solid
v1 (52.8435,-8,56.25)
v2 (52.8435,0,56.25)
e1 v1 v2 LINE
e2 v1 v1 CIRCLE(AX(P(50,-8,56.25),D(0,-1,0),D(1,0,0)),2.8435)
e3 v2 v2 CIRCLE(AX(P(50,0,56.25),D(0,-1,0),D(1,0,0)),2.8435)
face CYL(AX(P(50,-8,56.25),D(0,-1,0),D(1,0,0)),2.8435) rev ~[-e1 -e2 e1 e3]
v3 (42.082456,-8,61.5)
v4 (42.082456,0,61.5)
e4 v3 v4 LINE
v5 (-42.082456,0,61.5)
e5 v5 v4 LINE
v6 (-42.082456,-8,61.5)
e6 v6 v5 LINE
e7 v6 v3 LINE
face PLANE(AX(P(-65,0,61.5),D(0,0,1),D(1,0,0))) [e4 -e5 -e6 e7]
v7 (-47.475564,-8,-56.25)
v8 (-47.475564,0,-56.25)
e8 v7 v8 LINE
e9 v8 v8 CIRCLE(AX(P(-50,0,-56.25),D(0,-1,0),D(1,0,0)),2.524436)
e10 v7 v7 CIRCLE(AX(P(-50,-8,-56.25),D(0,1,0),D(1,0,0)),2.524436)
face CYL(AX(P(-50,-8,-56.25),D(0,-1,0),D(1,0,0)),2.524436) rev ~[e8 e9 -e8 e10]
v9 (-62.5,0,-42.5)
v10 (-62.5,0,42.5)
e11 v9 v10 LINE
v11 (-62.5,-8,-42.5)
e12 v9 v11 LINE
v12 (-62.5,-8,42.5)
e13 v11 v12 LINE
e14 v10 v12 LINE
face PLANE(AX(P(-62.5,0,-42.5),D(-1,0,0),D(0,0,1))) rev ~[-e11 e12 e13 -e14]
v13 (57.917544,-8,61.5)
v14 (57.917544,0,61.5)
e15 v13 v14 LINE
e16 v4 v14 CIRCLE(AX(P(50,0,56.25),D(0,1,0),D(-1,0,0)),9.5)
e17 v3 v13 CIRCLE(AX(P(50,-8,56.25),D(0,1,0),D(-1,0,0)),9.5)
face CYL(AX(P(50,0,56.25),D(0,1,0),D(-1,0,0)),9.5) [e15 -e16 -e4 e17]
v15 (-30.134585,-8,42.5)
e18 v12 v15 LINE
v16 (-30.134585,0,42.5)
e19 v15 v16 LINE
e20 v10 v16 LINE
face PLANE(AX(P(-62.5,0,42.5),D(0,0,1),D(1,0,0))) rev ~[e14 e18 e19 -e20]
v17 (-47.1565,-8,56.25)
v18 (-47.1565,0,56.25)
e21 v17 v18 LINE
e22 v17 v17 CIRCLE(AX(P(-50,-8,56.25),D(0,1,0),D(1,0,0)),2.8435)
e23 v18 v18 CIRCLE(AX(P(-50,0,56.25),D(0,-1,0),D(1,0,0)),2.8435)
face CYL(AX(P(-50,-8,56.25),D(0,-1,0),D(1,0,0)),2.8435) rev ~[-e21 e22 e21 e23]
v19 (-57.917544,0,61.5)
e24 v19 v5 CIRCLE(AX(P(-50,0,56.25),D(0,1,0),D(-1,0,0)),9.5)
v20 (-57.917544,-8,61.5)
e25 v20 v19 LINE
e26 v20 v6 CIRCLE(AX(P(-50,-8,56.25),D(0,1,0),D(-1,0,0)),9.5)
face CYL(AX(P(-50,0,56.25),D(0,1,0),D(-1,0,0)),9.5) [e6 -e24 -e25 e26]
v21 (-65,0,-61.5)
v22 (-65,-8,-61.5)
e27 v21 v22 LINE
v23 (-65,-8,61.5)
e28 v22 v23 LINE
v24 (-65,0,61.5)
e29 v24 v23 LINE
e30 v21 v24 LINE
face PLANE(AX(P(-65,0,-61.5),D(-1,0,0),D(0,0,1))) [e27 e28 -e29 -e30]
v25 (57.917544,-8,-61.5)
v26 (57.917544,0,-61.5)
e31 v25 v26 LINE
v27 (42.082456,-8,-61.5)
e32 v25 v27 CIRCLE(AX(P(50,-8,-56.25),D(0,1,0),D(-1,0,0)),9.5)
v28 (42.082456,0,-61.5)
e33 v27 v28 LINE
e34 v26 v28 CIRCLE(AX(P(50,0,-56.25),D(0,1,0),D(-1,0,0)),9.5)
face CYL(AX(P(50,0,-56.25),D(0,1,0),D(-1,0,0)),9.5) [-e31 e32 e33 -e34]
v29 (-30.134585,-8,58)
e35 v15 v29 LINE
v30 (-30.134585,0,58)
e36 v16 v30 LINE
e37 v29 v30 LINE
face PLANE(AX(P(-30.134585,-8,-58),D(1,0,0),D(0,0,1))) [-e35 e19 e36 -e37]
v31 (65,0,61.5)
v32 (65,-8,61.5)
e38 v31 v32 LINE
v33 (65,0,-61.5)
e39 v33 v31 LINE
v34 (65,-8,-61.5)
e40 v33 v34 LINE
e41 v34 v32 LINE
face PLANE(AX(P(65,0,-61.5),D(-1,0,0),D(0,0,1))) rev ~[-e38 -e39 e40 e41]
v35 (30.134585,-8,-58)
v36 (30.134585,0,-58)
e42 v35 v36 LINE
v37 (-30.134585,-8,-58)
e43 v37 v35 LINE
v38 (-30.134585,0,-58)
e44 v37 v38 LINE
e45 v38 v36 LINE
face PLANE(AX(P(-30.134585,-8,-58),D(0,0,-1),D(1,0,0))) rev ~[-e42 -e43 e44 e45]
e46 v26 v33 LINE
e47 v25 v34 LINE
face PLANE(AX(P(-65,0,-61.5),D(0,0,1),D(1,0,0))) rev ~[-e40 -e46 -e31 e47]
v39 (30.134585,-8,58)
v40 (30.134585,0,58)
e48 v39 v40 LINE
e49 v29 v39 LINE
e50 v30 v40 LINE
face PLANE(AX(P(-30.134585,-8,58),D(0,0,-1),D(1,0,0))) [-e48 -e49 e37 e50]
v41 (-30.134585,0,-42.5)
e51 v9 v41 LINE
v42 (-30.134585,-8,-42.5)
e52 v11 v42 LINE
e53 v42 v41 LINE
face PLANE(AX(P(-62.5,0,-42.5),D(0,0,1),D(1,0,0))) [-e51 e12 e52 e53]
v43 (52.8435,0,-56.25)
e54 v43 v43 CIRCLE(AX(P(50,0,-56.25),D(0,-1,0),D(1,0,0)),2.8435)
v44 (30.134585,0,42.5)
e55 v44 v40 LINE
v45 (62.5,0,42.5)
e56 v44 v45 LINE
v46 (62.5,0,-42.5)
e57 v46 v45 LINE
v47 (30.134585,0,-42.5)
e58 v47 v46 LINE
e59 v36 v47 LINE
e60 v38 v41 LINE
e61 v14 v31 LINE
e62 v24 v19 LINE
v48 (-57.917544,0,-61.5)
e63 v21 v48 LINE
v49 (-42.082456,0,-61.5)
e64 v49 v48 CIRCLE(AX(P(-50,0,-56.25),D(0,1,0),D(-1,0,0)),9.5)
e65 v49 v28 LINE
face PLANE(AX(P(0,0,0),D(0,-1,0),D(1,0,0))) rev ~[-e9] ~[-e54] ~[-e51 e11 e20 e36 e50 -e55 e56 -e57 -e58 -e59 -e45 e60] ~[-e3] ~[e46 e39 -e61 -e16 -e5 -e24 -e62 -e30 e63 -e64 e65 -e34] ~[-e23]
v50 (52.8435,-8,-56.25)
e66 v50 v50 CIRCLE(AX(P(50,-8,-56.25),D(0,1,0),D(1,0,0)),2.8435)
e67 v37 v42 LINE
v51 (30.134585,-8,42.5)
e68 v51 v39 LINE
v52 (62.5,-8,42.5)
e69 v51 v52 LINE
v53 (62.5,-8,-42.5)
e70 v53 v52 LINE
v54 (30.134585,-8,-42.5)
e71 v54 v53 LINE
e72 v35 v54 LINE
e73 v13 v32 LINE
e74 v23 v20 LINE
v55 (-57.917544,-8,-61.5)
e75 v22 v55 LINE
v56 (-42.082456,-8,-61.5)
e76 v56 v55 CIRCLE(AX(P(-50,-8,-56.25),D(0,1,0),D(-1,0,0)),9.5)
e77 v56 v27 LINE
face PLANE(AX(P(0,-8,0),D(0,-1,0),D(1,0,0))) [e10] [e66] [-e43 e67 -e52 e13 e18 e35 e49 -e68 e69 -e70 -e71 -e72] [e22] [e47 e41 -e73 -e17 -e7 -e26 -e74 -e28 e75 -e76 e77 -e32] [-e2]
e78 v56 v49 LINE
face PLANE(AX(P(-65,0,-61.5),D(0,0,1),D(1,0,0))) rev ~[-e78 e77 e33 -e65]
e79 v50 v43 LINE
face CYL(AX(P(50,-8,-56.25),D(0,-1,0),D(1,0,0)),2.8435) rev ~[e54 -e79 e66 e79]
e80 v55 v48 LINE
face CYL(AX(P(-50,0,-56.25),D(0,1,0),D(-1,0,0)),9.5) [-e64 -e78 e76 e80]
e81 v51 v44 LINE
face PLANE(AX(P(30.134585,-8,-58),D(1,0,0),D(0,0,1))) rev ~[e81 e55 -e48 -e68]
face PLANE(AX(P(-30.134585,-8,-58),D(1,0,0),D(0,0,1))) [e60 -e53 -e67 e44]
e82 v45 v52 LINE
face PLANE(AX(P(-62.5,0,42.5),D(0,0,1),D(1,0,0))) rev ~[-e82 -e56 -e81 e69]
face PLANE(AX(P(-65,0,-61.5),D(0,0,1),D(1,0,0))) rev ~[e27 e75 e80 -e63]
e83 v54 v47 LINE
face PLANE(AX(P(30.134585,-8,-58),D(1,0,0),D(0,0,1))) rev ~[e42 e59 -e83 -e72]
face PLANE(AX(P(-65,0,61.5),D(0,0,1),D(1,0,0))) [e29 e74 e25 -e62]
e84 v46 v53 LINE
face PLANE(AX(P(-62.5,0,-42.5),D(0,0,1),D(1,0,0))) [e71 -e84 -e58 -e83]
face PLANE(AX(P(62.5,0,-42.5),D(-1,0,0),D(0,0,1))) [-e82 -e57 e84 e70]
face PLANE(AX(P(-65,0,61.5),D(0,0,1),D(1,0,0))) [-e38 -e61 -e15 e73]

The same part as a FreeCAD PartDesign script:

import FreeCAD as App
import Part
import Sketcher
Q = App.Units.Quantity

doc = App.newDocument("Part")
body = doc.addObject("PartDesign::Body", "Body")

sketch1 = doc.addObject("Sketcher::SketchObject", "Sketch")
body.addObject(sketch1)
sketch1.AttachmentSupport = (doc.XZ_Plane, [""])
sketch1.MapMode = "FlatFace"
sketch1.addGeometry(Part.LineSegment(App.Vector(-65, 61.5, 0), App.Vector(-65, -61.5, 0)), False)
sketch1.addGeometry(Part.LineSegment(App.Vector(-65, -61.5, 0), App.Vector(65, -61.5, 0)), False)
sketch1.addGeometry(Part.LineSegment(App.Vector(65, -61.5, 0), App.Vector(65, 61.5, 0)), False)
sketch1.addGeometry(Part.LineSegment(App.Vector(65, 61.5, 0), App.Vector(-65, 61.5, 0)), False)
sketch1.addGeometry(Part.LineSegment(App.Vector(62.5, -42.5, 0), App.Vector(-62.5, -42.5, 0)), False)
sketch1.addGeometry(Part.LineSegment(App.Vector(-62.5, -42.5, 0), App.Vector(-62.5, 42.5, 0)), False)
sketch1.addGeometry(Part.LineSegment(App.Vector(-62.5, 42.5, 0), App.Vector(62.5, 42.5, 0)), False)
sketch1.addGeometry(Part.LineSegment(App.Vector(62.5, 42.5, 0), App.Vector(62.5, -42.5, 0)), False)
sketch1.addConstraint(Sketcher.Constraint("Coincident", 0, 2, 1, 1))
sketch1.addConstraint(Sketcher.Constraint("Coincident", 1, 2, 2, 1))
sketch1.addConstraint(Sketcher.Constraint("Coincident", 2, 2, 3, 1))
sketch1.addConstraint(Sketcher.Constraint("Coincident", 3, 2, 0, 1))
sketch1.addConstraint(Sketcher.Constraint("Coincident", 4, 2, 5, 1))
sketch1.addConstraint(Sketcher.Constraint("Coincident", 5, 2, 6, 1))
sketch1.addConstraint(Sketcher.Constraint("Coincident", 6, 2, 7, 1))
sketch1.addConstraint(Sketcher.Constraint("Coincident", 7, 2, 4, 1))
sketch1.addConstraint(Sketcher.Constraint("Vertical", 0))
sketch1.addConstraint(Sketcher.Constraint("Horizontal", 1))
sketch1.addConstraint(Sketcher.Constraint("Vertical", 2))
sketch1.addConstraint(Sketcher.Constraint("Horizontal", 3))
sketch1.addConstraint(Sketcher.Constraint("Horizontal", 4))
sketch1.addConstraint(Sketcher.Constraint("Vertical", 5))
sketch1.addConstraint(Sketcher.Constraint("Horizontal", 6))
sketch1.addConstraint(Sketcher.Constraint("Vertical", 7))
sketch1.addConstraint(Sketcher.Constraint("Symmetric", 0, 2, 2, 2, -1, 1))
sketch1.addConstraint(Sketcher.Constraint("Symmetric", 4, 2, 6, 2, -1, 1))
sketch1.addConstraint(Sketcher.Constraint("DistanceX", 1, 1, 1, 2, Q("130 mm")))
sketch1.addConstraint(Sketcher.Constraint("DistanceX", 4, 2, 4, 1, Q("125 mm")))
sketch1.addConstraint(Sketcher.Constraint("DistanceY", 0, 2, 0, 1, Q("123 mm")))
sketch1.addConstraint(Sketcher.Constraint("DistanceY", 5, 1, 5, 2, Q("85 mm")))
pad1 = doc.addObject("PartDesign::Pad", "Pad")
body.addObject(pad1)
pad1.Profile = sketch1
pad1.Length = 8

sketch2 = doc.addObject("Sketcher::SketchObject", "Sketch001")
body.addObject(sketch2)
sketch2.AttachmentSupport = (doc.XZ_Plane, [""])
sketch2.MapMode = "FlatFace"
sketch2.AttachmentOffset = App.Placement(App.Vector(0, 0, 8), App.Rotation())
sketch2.addGeometry(Part.Circle(App.Vector(-50, 56.25, 0), App.Vector(0, 0, 1), 2.8435), False)
sketch2.addGeometry(Part.Circle(App.Vector(50, 56.25, 0), App.Vector(0, 0, 1), 2.8435), False)
sketch2.addGeometry(Part.Circle(App.Vector(-50, -56.25, 0), App.Vector(0, 0, 1), 2.524436), False)
sketch2.addGeometry(Part.Circle(App.Vector(50, -56.25, 0), App.Vector(0, 0, 1), 2.8435), False)
sketch2.addConstraint(Sketcher.Constraint("Equal", 0, 1))
sketch2.addConstraint(Sketcher.Constraint("Equal", 1, 3))
sketch2.addConstraint(Sketcher.Constraint("Symmetric", 1, 3, 2, 3, -1, 1))
sketch2.addConstraint(Sketcher.Constraint("Symmetric", 0, 3, 3, 3, -1, 1))
sketch2.addConstraint(Sketcher.Constraint("Symmetric", 0, 3, 1, 3, -2))
sketch2.addConstraint(Sketcher.Constraint("Diameter", 0, Q("5.687 mm")))
sketch2.addConstraint(Sketcher.Constraint("DistanceX", 0, 3, -1, 1, Q("50 mm")))
sketch2.addConstraint(Sketcher.Constraint("DistanceY", 2, 3, 0, 3, Q("112.5 mm")))
sketch2.addConstraint(Sketcher.Constraint("Diameter", 2, Q("5.048872 mm")))
pocket1 = doc.addObject("PartDesign::Pocket", "Pocket")
body.addObject(pocket1)
pocket1.Profile = sketch2
pocket1.Length = 25

sketch3 = doc.addObject("Sketcher::SketchObject", "Sketch002")
body.addObject(sketch3)
sketch3.AttachmentSupport = (doc.XZ_Plane, [""])
sketch3.MapMode = "FlatFace"
sketch3.AttachmentOffset = App.Placement(App.Vector(0, 0, 8), App.Rotation())
sketch3.addGeometry(Part.LineSegment(App.Vector(-30.134585, 58, 0), App.Vector(-30.134585, -58, 0)), False)
sketch3.addGeometry(Part.LineSegment(App.Vector(-30.134585, -58, 0), App.Vector(30.134585, -58, 0)), False)
sketch3.addGeometry(Part.LineSegment(App.Vector(30.134585, -58, 0), App.Vector(30.134585, 58, 0)), False)
sketch3.addGeometry(Part.LineSegment(App.Vector(30.134585, 58, 0), App.Vector(-30.134585, 58, 0)), False)
sketch3.addConstraint(Sketcher.Constraint("Coincident", 0, 2, 1, 1))
sketch3.addConstraint(Sketcher.Constraint("Coincident", 1, 2, 2, 1))
sketch3.addConstraint(Sketcher.Constraint("Coincident", 2, 2, 3, 1))
sketch3.addConstraint(Sketcher.Constraint("Coincident", 3, 2, 0, 1))
sketch3.addConstraint(Sketcher.Constraint("Vertical", 0))
sketch3.addConstraint(Sketcher.Constraint("Horizontal", 1))
sketch3.addConstraint(Sketcher.Constraint("Vertical", 2))
sketch3.addConstraint(Sketcher.Constraint("Horizontal", 3))
sketch3.addConstraint(Sketcher.Constraint("Symmetric", 0, 2, 2, 2, -1, 1))
sketch3.addConstraint(Sketcher.Constraint("DistanceY", 0, 2, 0, 1, Q("116 mm")))
sketch3.addConstraint(Sketcher.Constraint("DistanceX", 1, 1, 1, 2, Q("60.26917 mm")))
pocket2 = doc.addObject("PartDesign::Pocket", "Pocket001")
body.addObject(pocket2)
pocket2.Profile = sketch3
pocket2.Length = 25

sketch4 = doc.addObject("Sketcher::SketchObject", "Sketch003")
body.addObject(sketch4)
sketch4.AttachmentSupport = (doc.XZ_Plane, [""])
sketch4.MapMode = "FlatFace"
sketch4.addGeometry(Part.Circle(App.Vector(50, 56.25, 0), App.Vector(0, 0, 1), 9.5), False)
sketch4.addGeometry(Part.Circle(App.Vector(50, 56.25, 0), App.Vector(0, 0, 1), 2.8435), False)
sketch4.addGeometry(Part.Circle(App.Vector(-50, 56.25, 0), App.Vector(0, 0, 1), 9.5), False)
sketch4.addGeometry(Part.Circle(App.Vector(-50, 56.25, 0), App.Vector(0, 0, 1), 2.8435), False)
sketch4.addGeometry(Part.Circle(App.Vector(50, -56.25, 0), App.Vector(0, 0, 1), 9.5), False)
sketch4.addGeometry(Part.Circle(App.Vector(50, -56.25, 0), App.Vector(0, 0, 1), 2.8435), False)
sketch4.addGeometry(Part.Circle(App.Vector(-50, -56.25, 0), App.Vector(0, 0, 1), 9.5), False)
sketch4.addGeometry(Part.Circle(App.Vector(-50, -56.25, 0), App.Vector(0, 0, 1), 2.524436), False)
sketch4.addConstraint(Sketcher.Constraint("Coincident", 1, 3, 0, 3))
sketch4.addConstraint(Sketcher.Constraint("Coincident", 3, 3, 2, 3))
sketch4.addConstraint(Sketcher.Constraint("Coincident", 5, 3, 4, 3))
sketch4.addConstraint(Sketcher.Constraint("Coincident", 7, 3, 6, 3))
sketch4.addConstraint(Sketcher.Constraint("Equal", 0, 2))
sketch4.addConstraint(Sketcher.Constraint("Equal", 1, 3))
sketch4.addConstraint(Sketcher.Constraint("Equal", 2, 4))
sketch4.addConstraint(Sketcher.Constraint("Equal", 3, 5))
sketch4.addConstraint(Sketcher.Constraint("Equal", 4, 6))
sketch4.addConstraint(Sketcher.Constraint("Symmetric", 2, 3, 4, 3, -1, 1))
sketch4.addConstraint(Sketcher.Constraint("Symmetric", 0, 3, 6, 3, -1, 1))
sketch4.addConstraint(Sketcher.Constraint("Symmetric", 0, 3, 2, 3, -2))
sketch4.addConstraint(Sketcher.Constraint("Diameter", 0, Q("19 mm")))
sketch4.addConstraint(Sketcher.Constraint("Diameter", 1, Q("5.687 mm")))
sketch4.addConstraint(Sketcher.Constraint("DistanceX", -1, 1, 0, 3, Q("50 mm")))
sketch4.addConstraint(Sketcher.Constraint("DistanceY", 4, 3, 0, 3, Q("112.5 mm")))
sketch4.addConstraint(Sketcher.Constraint("Diameter", 7, Q("5.048872 mm")))
pad2 = doc.addObject("PartDesign::Pad", "Pad001")
body.addObject(pad2)
pad2.Profile = sketch4
pad2.Length = 8

doc.recompute()
